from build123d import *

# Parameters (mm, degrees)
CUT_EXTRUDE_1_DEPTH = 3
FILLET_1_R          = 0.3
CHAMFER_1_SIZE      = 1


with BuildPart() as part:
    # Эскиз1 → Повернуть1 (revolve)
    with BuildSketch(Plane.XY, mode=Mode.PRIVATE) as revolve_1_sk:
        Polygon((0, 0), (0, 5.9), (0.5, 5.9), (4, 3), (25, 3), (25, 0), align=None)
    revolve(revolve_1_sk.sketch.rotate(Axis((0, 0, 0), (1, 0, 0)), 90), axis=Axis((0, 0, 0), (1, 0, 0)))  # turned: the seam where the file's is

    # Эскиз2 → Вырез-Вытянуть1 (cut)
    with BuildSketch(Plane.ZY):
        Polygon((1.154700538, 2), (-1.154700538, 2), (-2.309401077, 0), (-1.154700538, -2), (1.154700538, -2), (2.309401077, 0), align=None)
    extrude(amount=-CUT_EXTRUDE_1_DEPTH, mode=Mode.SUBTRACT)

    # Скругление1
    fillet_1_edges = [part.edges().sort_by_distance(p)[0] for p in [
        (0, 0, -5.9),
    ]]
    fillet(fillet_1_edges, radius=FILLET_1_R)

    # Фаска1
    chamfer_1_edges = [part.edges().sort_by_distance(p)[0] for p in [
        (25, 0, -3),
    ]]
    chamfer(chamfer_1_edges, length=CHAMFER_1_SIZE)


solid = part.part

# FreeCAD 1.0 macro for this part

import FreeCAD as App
import Part
import Sketcher

V = App.Vector
Q = App.Units.Quantity


def edges_at(feature, points):
    """Names of the edges that pass closest to the given points."""
    edges = feature.Shape.Edges
    near = lambda p: min(range(len(edges)), key=lambda i: edges[i].distToShape(Part.Vertex(*p))[0])
    return sorted({f"Edge{near(p) + 1}" for p in points})


def add_polygon(sketch, points):
    """Adds a closed chain of lines whose ends are joined by coincident constraints."""
    first, n = sketch.GeometryCount, len(points)
    for a, b in zip(points, points[1:] + points[:1]):
        sketch.addGeometry(Part.LineSegment(App.Vector(*a, 0), App.Vector(*b, 0)), False)
    for i in range(n):
        sketch.addConstraint(Sketcher.Constraint("Coincident", first + i, 2, first + (i + 1) % n, 1))

doc = App.newDocument("Part")
body = doc.addObject("PartDesign::Body", "Body")

# Sketch on XY plane
sketch1 = body.newObject("Sketcher::SketchObject", "Sketch")
sketch1.AttachmentSupport = (doc.getObject("XY_Plane"), [""])
sketch1.MapMode = "FlatFace"
add_polygon(sketch1, [(0, 5.9), (0, 0), (25, 0), (25, 3), (4, 3), (0.5, 5.9)])  # lines 0-5
sketch1.addConstraint(Sketcher.Constraint("Vertical", 0))
sketch1.addConstraint(Sketcher.Constraint("Horizontal", 1))
sketch1.addConstraint(Sketcher.Constraint("Vertical", 2))
sketch1.addConstraint(Sketcher.Constraint("Horizontal", 3))
sketch1.addConstraint(Sketcher.Constraint("Horizontal", 5))
sketch1.addConstraint(Sketcher.Constraint("Coincident", 0, 2, -1, 1))
sketch1.addConstraint(Sketcher.Constraint("DistanceX", 1, 1, 1, 2, Q("25 mm")))
sketch1.addConstraint(Sketcher.Constraint("DistanceX", 3, 2, 3, 1, Q("21 mm")))
sketch1.addConstraint(Sketcher.Constraint("DistanceY", 2, 1, 2, 2, Q("3 mm")))
sketch1.addConstraint(Sketcher.Constraint("DistanceX", 5, 2, 5, 1, Q("0.5 mm")))
sketch1.addConstraint(Sketcher.Constraint("DistanceY", 0, 2, 0, 1, Q("5.9 mm")))
revolution = body.newObject("PartDesign::Revolution", "Revolution")
revolution.Profile = sketch1
revolution.ReferenceAxis = (sketch1, ["H_Axis"])
revolution.Angle = 360

# Sketch on YZ plane
sketch2 = body.newObject("Sketcher::SketchObject", "Sketch001")
sketch2.AttachmentSupport = (doc.getObject("YZ_Plane"), [""])
sketch2.MapMode = "FlatFace"
add_polygon(sketch2, [(2, 1.154701), (2, -1.154701), (0, -2.309401), (-2, -1.154701), (-2, 1.154701), (0, 2.309401)])  # lines 0-5
sketch2.addConstraint(Sketcher.Constraint("Vertical", 0))
sketch2.addConstraint(Sketcher.Constraint("Vertical", 3))
sketch2.addConstraint(Sketcher.Constraint("Symmetric", 0, 2, 3, 2, -1, 1))
sketch2.addConstraint(Sketcher.Constraint("Symmetric", 1, 2, 4, 2, -1, 1))
sketch2.addConstraint(Sketcher.Constraint("PointOnObject", 1, 2, -2))
sketch2.addConstraint(Sketcher.Constraint("Parallel", 2, 5))
sketch2.addConstraint(Sketcher.Constraint("Horizontal", 0, 2, 2, 2))
sketch2.addConstraint(Sketcher.Constraint("Angle", 1, Q("-150 deg")))
sketch2.addConstraint(Sketcher.Constraint("DistanceX", -1, 1, 0, 2, Q("2 mm")))
sketch2.addConstraint(Sketcher.Constraint("DistanceY", 0, 2, 0, 1, Q("2.309401 mm")))
pocket1 = body.newObject("PartDesign::Pocket", "Pocket")
pocket1.Profile = sketch2
pocket1.Length = 3
pocket1.Reversed = True
doc.recompute()

fillet = body.newObject("PartDesign::Fillet", "Fillet")
fillet.Base = (pocket1, edges_at(pocket1, [(0, 0, -5.9)]))
fillet.Radius = 0.3
doc.recompute()

chamfer = body.newObject("PartDesign::Chamfer", "Chamfer")
chamfer.Base = (fillet, edges_at(fillet, [(25, 0, -3)]))
chamfer.Size = 1

doc.recompute()
